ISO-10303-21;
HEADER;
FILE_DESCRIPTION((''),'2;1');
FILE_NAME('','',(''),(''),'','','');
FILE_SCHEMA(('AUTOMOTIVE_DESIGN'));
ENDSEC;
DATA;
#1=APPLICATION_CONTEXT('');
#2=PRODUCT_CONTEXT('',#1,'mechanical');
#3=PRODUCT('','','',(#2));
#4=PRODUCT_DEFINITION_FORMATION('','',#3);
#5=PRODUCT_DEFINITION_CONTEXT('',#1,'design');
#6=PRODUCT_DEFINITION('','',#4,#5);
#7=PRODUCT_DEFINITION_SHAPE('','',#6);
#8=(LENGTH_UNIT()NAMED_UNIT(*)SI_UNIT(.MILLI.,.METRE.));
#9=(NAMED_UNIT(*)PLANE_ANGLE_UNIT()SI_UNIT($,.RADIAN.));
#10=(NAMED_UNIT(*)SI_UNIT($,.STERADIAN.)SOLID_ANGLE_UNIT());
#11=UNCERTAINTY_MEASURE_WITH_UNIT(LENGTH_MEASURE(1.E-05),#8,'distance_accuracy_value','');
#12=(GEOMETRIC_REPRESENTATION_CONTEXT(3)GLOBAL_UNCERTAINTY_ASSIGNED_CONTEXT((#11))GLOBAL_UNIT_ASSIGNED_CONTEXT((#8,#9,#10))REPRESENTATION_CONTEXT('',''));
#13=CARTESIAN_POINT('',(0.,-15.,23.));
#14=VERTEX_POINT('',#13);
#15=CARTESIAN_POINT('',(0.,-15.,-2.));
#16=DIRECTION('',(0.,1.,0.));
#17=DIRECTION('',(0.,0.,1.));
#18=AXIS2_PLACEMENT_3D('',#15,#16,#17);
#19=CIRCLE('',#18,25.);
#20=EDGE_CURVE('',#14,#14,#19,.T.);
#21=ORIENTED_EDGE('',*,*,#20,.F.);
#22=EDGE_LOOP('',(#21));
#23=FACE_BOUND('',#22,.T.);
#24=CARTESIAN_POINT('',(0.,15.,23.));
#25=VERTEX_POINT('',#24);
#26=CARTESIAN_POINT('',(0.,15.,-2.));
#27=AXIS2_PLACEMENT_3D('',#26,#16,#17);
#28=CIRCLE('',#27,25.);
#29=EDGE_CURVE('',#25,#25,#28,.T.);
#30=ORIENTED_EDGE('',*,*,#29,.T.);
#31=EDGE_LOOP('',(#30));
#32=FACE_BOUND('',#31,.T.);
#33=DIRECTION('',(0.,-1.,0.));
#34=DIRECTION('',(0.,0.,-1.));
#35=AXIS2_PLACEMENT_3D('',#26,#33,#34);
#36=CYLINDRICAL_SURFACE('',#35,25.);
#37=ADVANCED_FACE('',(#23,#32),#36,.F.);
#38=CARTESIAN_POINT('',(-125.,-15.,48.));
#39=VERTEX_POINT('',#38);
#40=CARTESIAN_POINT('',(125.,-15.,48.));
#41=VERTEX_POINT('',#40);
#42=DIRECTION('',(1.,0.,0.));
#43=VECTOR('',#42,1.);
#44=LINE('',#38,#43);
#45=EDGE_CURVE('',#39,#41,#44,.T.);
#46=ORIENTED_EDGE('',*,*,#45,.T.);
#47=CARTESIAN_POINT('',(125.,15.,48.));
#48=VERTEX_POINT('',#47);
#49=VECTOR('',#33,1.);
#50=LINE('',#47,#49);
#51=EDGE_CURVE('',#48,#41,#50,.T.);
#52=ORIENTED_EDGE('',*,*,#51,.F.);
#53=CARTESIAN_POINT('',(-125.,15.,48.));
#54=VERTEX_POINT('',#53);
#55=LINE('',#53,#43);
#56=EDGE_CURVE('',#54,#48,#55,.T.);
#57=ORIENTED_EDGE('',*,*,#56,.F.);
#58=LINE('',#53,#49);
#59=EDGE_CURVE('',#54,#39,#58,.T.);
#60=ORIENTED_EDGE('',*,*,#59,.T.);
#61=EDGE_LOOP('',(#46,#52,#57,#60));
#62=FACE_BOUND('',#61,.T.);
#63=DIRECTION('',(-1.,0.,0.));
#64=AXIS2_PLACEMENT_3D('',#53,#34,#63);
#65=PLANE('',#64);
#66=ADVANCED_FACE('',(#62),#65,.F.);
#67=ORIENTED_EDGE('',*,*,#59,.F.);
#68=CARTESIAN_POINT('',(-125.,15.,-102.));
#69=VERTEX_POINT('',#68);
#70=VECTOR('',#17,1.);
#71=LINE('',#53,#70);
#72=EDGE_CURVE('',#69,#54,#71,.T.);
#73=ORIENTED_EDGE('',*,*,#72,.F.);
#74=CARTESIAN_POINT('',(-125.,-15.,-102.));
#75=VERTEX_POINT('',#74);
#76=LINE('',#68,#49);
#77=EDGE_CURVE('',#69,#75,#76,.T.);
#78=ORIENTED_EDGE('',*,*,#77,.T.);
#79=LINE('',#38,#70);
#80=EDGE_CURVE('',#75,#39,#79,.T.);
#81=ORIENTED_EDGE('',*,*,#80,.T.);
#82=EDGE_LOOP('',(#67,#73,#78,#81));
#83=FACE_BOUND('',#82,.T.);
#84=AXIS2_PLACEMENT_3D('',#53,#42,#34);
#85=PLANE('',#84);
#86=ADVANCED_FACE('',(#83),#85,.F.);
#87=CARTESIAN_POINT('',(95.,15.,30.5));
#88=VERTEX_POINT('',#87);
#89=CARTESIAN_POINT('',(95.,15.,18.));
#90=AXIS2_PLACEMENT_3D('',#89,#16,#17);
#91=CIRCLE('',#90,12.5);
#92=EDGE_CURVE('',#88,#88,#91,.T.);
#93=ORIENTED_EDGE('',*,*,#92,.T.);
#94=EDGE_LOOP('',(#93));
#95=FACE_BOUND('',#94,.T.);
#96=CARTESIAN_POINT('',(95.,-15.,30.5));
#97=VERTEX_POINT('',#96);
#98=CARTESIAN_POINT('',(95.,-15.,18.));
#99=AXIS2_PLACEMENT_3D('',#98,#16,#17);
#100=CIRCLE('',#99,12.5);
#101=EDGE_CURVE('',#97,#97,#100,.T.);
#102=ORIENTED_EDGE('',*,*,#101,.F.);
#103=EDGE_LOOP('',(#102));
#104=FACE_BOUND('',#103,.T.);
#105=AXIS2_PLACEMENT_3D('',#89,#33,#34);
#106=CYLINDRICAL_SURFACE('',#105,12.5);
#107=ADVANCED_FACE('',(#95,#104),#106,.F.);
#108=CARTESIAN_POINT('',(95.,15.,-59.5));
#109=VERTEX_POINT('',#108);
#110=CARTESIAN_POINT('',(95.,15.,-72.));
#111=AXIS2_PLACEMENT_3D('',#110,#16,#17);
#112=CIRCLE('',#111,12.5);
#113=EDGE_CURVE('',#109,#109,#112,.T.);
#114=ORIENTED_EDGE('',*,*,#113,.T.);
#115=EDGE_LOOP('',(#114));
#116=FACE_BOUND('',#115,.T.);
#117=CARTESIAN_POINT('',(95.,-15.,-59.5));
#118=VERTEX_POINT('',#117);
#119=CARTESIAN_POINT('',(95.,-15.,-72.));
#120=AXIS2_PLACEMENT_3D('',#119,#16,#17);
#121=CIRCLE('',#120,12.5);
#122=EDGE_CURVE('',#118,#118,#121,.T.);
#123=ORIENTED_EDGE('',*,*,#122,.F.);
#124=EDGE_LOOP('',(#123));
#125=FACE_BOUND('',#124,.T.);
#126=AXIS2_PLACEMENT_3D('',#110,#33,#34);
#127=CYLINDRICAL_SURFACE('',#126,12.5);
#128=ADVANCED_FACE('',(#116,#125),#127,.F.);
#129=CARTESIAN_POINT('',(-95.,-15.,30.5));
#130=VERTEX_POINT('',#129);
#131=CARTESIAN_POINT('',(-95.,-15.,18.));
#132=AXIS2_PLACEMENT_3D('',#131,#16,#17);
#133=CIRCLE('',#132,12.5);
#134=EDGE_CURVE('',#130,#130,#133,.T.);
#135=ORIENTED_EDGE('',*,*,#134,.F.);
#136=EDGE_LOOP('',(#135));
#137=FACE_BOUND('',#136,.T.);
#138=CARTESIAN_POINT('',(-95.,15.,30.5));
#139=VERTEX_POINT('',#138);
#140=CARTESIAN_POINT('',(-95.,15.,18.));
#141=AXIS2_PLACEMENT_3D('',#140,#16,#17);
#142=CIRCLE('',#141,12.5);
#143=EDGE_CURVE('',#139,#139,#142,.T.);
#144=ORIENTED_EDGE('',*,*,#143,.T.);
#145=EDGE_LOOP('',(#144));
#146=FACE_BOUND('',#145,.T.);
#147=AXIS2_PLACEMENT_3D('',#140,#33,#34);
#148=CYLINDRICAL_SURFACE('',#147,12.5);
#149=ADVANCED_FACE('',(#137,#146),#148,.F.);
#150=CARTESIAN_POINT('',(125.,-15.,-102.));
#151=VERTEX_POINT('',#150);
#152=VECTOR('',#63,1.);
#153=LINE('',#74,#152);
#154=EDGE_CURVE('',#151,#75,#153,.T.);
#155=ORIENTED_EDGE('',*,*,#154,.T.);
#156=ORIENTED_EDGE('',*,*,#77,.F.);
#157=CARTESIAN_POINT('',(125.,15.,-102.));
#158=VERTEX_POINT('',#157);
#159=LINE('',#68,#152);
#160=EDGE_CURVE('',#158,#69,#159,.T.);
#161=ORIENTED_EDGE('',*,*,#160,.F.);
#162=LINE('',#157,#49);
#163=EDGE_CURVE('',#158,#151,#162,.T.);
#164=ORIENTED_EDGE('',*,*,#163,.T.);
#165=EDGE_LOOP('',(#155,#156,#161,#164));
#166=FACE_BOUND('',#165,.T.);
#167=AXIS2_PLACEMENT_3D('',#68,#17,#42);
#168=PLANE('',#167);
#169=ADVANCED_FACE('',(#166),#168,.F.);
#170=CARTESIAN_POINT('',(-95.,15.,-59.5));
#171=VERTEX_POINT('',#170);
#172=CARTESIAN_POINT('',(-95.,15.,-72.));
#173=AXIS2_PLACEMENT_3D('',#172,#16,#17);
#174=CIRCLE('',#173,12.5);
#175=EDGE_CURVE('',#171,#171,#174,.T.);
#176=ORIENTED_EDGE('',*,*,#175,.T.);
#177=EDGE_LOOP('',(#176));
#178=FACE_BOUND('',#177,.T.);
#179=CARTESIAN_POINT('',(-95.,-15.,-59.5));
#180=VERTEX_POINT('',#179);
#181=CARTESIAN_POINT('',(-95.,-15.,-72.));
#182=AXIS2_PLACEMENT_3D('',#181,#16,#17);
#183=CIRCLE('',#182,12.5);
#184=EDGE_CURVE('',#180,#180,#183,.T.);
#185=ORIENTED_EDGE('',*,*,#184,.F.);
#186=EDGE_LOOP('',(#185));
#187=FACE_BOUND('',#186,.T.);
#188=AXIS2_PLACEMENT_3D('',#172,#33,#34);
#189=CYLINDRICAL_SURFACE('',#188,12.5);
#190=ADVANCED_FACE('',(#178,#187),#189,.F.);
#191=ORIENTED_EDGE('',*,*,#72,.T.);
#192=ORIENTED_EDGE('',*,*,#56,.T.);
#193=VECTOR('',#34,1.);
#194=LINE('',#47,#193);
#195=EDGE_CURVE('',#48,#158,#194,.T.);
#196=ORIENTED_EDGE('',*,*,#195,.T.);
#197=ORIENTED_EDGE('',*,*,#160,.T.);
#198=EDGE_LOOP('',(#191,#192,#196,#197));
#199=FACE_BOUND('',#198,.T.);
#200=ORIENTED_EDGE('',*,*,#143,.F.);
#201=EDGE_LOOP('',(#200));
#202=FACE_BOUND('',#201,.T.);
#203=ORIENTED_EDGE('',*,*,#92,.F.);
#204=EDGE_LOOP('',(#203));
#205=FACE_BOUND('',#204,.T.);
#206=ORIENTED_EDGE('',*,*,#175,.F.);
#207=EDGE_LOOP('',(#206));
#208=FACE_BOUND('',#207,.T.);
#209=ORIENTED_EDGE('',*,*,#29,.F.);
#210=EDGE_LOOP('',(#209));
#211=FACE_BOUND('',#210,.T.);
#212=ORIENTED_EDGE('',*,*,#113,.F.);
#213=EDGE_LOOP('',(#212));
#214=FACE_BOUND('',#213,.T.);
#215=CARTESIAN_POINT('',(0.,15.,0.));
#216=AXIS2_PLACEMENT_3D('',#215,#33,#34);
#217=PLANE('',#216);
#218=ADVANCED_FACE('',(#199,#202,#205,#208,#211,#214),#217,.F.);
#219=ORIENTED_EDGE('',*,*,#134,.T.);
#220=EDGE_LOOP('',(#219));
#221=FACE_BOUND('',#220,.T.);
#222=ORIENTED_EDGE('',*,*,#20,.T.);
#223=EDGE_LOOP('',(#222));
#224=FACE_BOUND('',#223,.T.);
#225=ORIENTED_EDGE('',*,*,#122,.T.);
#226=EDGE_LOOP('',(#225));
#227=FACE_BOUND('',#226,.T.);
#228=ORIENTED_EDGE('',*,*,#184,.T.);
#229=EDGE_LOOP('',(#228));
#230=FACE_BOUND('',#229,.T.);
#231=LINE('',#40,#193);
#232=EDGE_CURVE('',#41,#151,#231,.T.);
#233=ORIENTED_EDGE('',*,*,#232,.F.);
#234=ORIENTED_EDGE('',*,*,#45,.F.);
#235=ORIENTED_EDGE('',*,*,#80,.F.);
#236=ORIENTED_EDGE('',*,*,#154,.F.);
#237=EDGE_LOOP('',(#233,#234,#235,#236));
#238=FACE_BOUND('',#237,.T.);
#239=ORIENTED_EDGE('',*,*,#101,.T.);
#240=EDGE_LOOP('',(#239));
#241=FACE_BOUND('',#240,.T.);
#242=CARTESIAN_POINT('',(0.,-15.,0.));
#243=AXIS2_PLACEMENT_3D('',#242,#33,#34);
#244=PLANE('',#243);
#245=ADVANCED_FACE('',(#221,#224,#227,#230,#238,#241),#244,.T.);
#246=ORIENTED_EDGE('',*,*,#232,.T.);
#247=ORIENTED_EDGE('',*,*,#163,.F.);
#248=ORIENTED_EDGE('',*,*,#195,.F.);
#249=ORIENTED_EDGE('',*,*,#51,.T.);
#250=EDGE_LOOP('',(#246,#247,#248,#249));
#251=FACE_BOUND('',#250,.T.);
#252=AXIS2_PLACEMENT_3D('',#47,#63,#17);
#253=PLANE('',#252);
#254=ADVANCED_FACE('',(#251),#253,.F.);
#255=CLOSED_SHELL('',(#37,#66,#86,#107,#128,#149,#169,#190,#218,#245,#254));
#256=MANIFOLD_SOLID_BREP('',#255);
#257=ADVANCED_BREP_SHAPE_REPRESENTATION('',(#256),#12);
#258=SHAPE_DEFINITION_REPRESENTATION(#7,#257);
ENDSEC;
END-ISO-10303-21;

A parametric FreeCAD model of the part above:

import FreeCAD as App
import Part
import Sketcher
from FreeCAD import Vector
Q = App.Units.Quantity


def add_polygon(sketch, points):
    """Adds a closed chain of lines whose ends are joined by coincident constraints."""
    first, n = sketch.GeometryCount, len(points)
    for a, b in zip(points, points[1:] + points[:1]):
        sketch.addGeometry(Part.LineSegment(App.Vector(*a, 0), App.Vector(*b, 0)), False)
    for i in range(n):
        sketch.addConstraint(Sketcher.Constraint("Coincident", first + i, 2, first + (i + 1) % n, 1))

doc = App.newDocument("Part")
body = doc.addObject("PartDesign::Body", "Body")

sketch1 = body.newObject("Sketcher::SketchObject", "Sketch")
sketch1.AttachmentSupport = (doc.getObject("XZ_Plane"), [""])
sketch1.MapMode = "FlatFace"
add_polygon(sketch1, [(-125, -102), (-125, 48), (125, 48), (125, -102)])
sketch1.addGeometry(Part.Circle(Vector(-95, 18, 0), Vector(0, 0, 1), 12.5), False)
sketch1.addGeometry(Part.Circle(Vector(95, 18, 0), Vector(0, 0, 1), 12.5), False)
sketch1.addGeometry(Part.Circle(Vector(0, -2, 0), Vector(0, 0, 1), 25), False)
sketch1.addGeometry(Part.Circle(Vector(-95, -72, 0), Vector(0, 0, 1), 12.5), False)
sketch1.addGeometry(Part.Circle(Vector(95, -72, 0), Vector(0, 0, 1), 12.5), False)
sketch1.addConstraint([
    Sketcher.Constraint("Vertical", 0),
    Sketcher.Constraint("Horizontal", 1),
    Sketcher.Constraint("Vertical", 2),
    Sketcher.Constraint("Horizontal", 3),
    Sketcher.Constraint("Equal", 4, 5),
    Sketcher.Constraint("Equal", 5, 7),
    Sketcher.Constraint("Equal", 7, 8),
    Sketcher.Constraint("Symmetric", 4, 3, 5, 3, -2),
    Sketcher.Constraint("Symmetric", 7, 3, 8, 3, -2),
    Sketcher.Constraint("PointOnObject", 6, 3, -2),
    Sketcher.Constraint("Vertical", 4, 3, 7, 3),
    Sketcher.Constraint("Diameter", 4, Q("25 mm")),
    Sketcher.Constraint("Diameter", 6, Q("50 mm")),
    Sketcher.Constraint("DistanceX", 1, 1, 1, 2, Q("250 mm")),
    Sketcher.Constraint("DistanceY", 0, 1, 0, 2, Q("150 mm")),
    Sketcher.Constraint("DistanceX", 4, 3, -1, 1, Q("95 mm")),
    Sketcher.Constraint("DistanceY", -1, 1, 4, 3, Q("18 mm")),
    Sketcher.Constraint("DistanceY", 6, 3, -1, 1, Q("2 mm")),
    Sketcher.Constraint("DistanceY", 7, 3, -1, 1, Q("72 mm")),
    Sketcher.Constraint("DistanceX", 0, 2, -1, 1, Q("125 mm")),
    Sketcher.Constraint("DistanceY", -1, 1, 0, 2, Q("48 mm")),
])
pad1 = body.newObject("PartDesign::Pad", "Pad")
pad1.Profile = sketch1
pad1.Length = 30
pad1.Midplane = True

doc.recompute()
